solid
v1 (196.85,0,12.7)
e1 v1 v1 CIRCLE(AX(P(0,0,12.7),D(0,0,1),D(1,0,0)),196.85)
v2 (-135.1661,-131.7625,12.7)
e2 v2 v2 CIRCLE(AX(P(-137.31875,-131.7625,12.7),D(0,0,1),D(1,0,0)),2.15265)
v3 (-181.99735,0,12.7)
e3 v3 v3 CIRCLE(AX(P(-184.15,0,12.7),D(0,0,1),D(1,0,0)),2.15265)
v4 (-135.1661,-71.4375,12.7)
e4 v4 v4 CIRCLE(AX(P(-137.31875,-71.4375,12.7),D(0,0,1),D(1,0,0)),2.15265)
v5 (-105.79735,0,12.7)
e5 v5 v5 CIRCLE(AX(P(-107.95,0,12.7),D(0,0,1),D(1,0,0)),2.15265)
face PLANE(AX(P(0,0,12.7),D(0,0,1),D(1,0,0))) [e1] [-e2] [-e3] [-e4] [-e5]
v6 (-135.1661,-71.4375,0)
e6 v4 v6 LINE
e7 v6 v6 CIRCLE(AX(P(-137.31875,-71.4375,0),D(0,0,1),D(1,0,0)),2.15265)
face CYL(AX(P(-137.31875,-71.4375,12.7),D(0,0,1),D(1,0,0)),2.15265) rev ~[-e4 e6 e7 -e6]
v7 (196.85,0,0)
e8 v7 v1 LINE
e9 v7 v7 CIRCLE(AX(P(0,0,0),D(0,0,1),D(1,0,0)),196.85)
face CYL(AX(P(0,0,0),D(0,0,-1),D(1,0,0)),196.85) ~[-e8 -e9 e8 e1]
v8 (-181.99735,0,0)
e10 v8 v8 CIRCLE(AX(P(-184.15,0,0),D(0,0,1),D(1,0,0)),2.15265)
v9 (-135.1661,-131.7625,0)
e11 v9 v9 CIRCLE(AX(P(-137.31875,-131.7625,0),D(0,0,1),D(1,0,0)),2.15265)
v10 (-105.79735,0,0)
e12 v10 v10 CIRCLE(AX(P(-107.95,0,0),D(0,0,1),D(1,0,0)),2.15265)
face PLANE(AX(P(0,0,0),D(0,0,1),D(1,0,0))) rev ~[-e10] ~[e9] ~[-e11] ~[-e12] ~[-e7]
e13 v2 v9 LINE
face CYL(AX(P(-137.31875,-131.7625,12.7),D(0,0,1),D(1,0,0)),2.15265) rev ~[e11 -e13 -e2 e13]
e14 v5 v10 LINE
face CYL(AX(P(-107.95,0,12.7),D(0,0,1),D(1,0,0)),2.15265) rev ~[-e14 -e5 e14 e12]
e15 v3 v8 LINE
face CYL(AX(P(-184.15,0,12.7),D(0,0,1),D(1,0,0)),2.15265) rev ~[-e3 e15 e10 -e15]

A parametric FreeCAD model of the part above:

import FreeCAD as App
import Part
import Sketcher

V = App.Vector
Q = App.Units.Quantity

doc = App.newDocument("Part")
body = doc.addObject("PartDesign::Body", "Body")

# Sketch on XY plane
sketch1 = body.newObject("Sketcher::SketchObject", "Sketch")
sketch1.AttachmentSupport = (doc.getObject("XY_Plane"), [""])
sketch1.MapMode = "FlatFace"
sketch1.addGeometry(Part.Circle(V(0, 0, 0), V(0, 0, 1), 197), False)
sketch1.addConstraint(Sketcher.Constraint("Coincident", 0, 3, -1, 1))
sketch1.addConstraint(Sketcher.Constraint("Diameter", 0, Q("15.5 in")))
pad1 = body.newObject("PartDesign::Pad", "Pad")
pad1.Profile = sketch1
pad1.Length = Q("0.5 in")

# Sketch on XY plane
sketch2 = body.newObject("Sketcher::SketchObject", "Sketch001")
sketch2.AttachmentSupport = (doc.getObject("XY_Plane"), [""])
sketch2.MapMode = "FlatFace"
sketch2.AttachmentOffset = App.Placement(V(0, 0, 0.5 * 25.4), App.Rotation())
sketch2.addGeometry(Part.Circle(V(-137.3, -71.4, 0), V(0, 0, 1), 2.2), False)
sketch2.addGeometry(Part.Circle(V(-137.3, -131.8, 0), V(0, 0, 1), 2.2), False)
sketch2.addGeometry(Part.Circle(V(-197.6, -71.4, 0), V(0, 0, 1), 2.2), False)
sketch2.addGeometry(Part.Circle(V(-197.6, -131.8, 0), V(0, 0, 1), 2.2), False)
sketch2.addGeometry(Part.Circle(V(-108, 0, 0), V(0, 0, 1), 2.2), False)
sketch2.addGeometry(Part.Circle(V(-184.2, 0, 0), V(0, 0, 1), 2.2), False)
sketch2.addConstraint(Sketcher.Constraint("Equal", 0, 1))
sketch2.addConstraint(Sketcher.Constraint("Equal", 1, 2))
sketch2.addConstraint(Sketcher.Constraint("Equal", 2, 3))
sketch2.addConstraint(Sketcher.Constraint("Equal", 3, 4))
sketch2.addConstraint(Sketcher.Constraint("Equal", 4, 5))
sketch2.addConstraint(Sketcher.Constraint("PointOnObject", 4, 3, -1))
sketch2.addConstraint(Sketcher.Constraint("PointOnObject", 5, 3, -1))
sketch2.addConstraint(Sketcher.Constraint("Horizontal", 0, 3, 2, 3))
sketch2.addConstraint(Sketcher.Constraint("Horizontal", 1, 3, 3, 3))
sketch2.addConstraint(Sketcher.Constraint("Vertical", 0, 3, 1, 3))
sketch2.addConstraint(Sketcher.Constraint("Vertical", 2, 3, 3, 3))
sketch2.addConstraint(Sketcher.Constraint("DistanceX", 5, 3, 4, 3, Q("3 in")))
sketch2.addConstraint(Sketcher.Constraint("Diameter", 0, Q("0.1695 in")))
sketch2.addConstraint(Sketcher.Constraint("DistanceX", 4, 3, -1, 1, Q("4.25 in")))
sketch2.addConstraint(Sketcher.Constraint("DistanceX", 0, 3, -1, 1, Q("5.40625 in")))
sketch2.addConstraint(Sketcher.Constraint("DistanceY", 0, 3, -1, 1, Q("2.8125 in")))
sketch2.addConstraint(Sketcher.Constraint("DistanceY", 1, 3, -1, 1, Q("5.1875 in")))
sketch2.addConstraint(Sketcher.Constraint("DistanceX", 2, 3, -1, 1, Q("7.78125 in")))
pocket1 = body.newObject("PartDesign::Pocket", "Pocket")
pocket1.Profile = sketch2
pocket1.Type = "ThroughAll"

doc.recompute()
